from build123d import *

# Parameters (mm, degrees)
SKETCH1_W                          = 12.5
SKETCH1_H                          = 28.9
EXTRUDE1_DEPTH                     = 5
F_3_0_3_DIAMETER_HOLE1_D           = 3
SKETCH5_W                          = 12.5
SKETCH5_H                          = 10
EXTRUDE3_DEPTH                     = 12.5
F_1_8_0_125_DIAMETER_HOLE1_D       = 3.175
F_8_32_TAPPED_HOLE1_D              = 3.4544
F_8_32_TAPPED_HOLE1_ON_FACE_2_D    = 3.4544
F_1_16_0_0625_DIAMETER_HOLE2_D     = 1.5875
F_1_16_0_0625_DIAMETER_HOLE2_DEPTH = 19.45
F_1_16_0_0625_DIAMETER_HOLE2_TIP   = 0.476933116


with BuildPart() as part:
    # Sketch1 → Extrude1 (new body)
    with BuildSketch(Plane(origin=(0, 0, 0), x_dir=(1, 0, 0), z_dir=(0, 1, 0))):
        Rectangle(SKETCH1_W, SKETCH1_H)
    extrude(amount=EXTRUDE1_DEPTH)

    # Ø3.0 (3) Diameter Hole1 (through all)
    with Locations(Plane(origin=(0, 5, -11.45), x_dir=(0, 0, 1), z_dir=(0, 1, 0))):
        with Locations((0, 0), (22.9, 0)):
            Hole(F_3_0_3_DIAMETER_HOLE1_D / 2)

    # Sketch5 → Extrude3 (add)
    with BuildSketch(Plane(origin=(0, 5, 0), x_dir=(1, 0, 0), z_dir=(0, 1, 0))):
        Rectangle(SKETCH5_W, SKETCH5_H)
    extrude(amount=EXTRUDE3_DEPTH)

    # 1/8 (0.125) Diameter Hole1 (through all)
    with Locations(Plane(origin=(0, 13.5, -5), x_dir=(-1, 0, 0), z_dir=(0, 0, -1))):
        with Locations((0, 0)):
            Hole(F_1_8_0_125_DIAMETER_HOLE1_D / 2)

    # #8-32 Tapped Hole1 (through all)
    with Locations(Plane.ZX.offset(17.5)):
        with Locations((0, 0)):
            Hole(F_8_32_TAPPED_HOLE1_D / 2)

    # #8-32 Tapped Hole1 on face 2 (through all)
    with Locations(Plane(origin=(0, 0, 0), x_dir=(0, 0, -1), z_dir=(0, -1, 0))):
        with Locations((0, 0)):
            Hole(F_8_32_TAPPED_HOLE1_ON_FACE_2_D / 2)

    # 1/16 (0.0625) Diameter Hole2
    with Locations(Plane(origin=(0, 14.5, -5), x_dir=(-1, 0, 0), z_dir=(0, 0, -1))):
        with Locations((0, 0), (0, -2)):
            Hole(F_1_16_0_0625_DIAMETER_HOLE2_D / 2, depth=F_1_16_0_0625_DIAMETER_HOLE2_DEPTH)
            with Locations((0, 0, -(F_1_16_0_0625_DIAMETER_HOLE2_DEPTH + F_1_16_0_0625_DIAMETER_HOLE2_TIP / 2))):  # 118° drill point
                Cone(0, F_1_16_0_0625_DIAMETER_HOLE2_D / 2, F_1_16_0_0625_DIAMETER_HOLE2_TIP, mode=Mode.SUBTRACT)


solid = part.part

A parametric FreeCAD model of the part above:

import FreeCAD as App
import Part
import Sketcher

doc = App.newDocument("Part")
body = doc.addObject("PartDesign::Body", "Body")

sketch1 = body.newObject("Sketcher::SketchObject", "Sketch")
sketch1.AttachmentSupport = (doc.getObject("XZ_Plane"), [""])
sketch1.MapMode = "FlatFace"
sketch1.addGeometry(Part.LineSegment(App.Vector(-6, -14, 0), App.Vector(-6, 14, 0)), False)
sketch1.addGeometry(Part.LineSegment(App.Vector(-6, 14, 0), App.Vector(6, 14, 0)), False)
sketch1.addGeometry(Part.LineSegment(App.Vector(6, 14, 0), App.Vector(6, -14, 0)), False)
sketch1.addGeometry(Part.LineSegment(App.Vector(6, -14, 0), App.Vector(-6, -14, 0)), False)
sketch1.addConstraint(Sketcher.Constraint("Coincident", 0, 2, 1, 1))
sketch1.addConstraint(Sketcher.Constraint("Coincident", 1, 2, 2, 1))
sketch1.addConstraint(Sketcher.Constraint("Coincident", 2, 2, 3, 1))
sketch1.addConstraint(Sketcher.Constraint("Coincident", 3, 2, 0, 1))
sketch1.addConstraint(Sketcher.Constraint("Vertical", 0))
sketch1.addConstraint(Sketcher.Constraint("Horizontal", 1))
sketch1.addConstraint(Sketcher.Constraint("Vertical", 2))
sketch1.addConstraint(Sketcher.Constraint("Horizontal", 3))
sketch1.addConstraint(Sketcher.Constraint("Symmetric", 0, 2, 2, 2, -1, 1))
sketch1.addConstraint(Sketcher.Constraint("DistanceX", 1, 1, 1, 2, 12.5))
sketch1.addConstraint(Sketcher.Constraint("DistanceY", 0, 1, 0, 2, 28.9))
pad1 = body.newObject("PartDesign::Pad", "Pad")
pad1.Profile = sketch1
pad1.Length = 5
pad1.Reversed = True

sketch2 = body.newObject("Sketcher::SketchObject", "Sketch001")
sketch2.AttachmentSupport = (doc.getObject("XZ_Plane"), [""])
sketch2.MapMode = "FlatFace"
sketch2.AttachmentOffset = App.Placement(App.Vector(0, 0, -5), App.Rotation())
sketch2.addGeometry(Part.Circle(App.Vector(0, -11.4, 0), App.Vector(0, 0, 1), 1.5), False)
sketch2.addGeometry(Part.Circle(App.Vector(0, 11.4, 0), App.Vector(0, 0, 1), 1.5), False)
sketch2.addConstraint(Sketcher.Constraint("Equal", 0, 1))
sketch2.addConstraint(Sketcher.Constraint("Symmetric", 0, 3, 1, 3, -1, 1))
sketch2.addConstraint(Sketcher.Constraint("PointOnObject", 0, 3, -2))
sketch2.addConstraint(Sketcher.Constraint("Diameter", 0, 3.0))
sketch2.addConstraint(Sketcher.Constraint("DistanceY", 0, 3, 1, 3, 22.9))
doc.recompute()
hole = body.newObject("PartDesign::Hole", "Hole")
hole.Profile = sketch2
hole.ThreadType = "None"
hole.Diameter = 3
hole.DepthType = "ThroughAll"
hole.Reversed = True

sketch3 = body.newObject("Sketcher::SketchObject", "Sketch002")
sketch3.AttachmentSupport = (doc.getObject("XZ_Plane"), [""])
sketch3.MapMode = "FlatFace"
sketch3.AttachmentOffset = App.Placement(App.Vector(0, 0, -5), App.Rotation())
sketch3.addGeometry(Part.LineSegment(App.Vector(-6, -5, 0), App.Vector(-6, 5, 0)), False)
sketch3.addGeometry(Part.LineSegment(App.Vector(-6, 5, 0), App.Vector(6, 5, 0)), False)
sketch3.addGeometry(Part.LineSegment(App.Vector(6, 5, 0), App.Vector(6, -5, 0)), False)
sketch3.addGeometry(Part.LineSegment(App.Vector(6, -5, 0), App.Vector(-6, -5, 0)), False)
sketch3.addConstraint(Sketcher.Constraint("Coincident", 0, 2, 1, 1))
sketch3.addConstraint(Sketcher.Constraint("Coincident", 1, 2, 2, 1))
sketch3.addConstraint(Sketcher.Constraint("Coincident", 2, 2, 3, 1))
sketch3.addConstraint(Sketcher.Constraint("Coincident", 3, 2, 0, 1))
sketch3.addConstraint(Sketcher.Constraint("Vertical", 0))
sketch3.addConstraint(Sketcher.Constraint("Horizontal", 1))
sketch3.addConstraint(Sketcher.Constraint("Vertical", 2))
sketch3.addConstraint(Sketcher.Constraint("Horizontal", 3))
sketch3.addConstraint(Sketcher.Constraint("Symmetric", 0, 2, 2, 2, -1, 1))
sketch3.addConstraint(Sketcher.Constraint("DistanceY", 0, 1, 0, 2, 10.0))
sketch3.addConstraint(Sketcher.Constraint("DistanceX", 1, 1, 1, 2, 12.5))
pad2 = body.newObject("PartDesign::Pad", "Pad001")
pad2.Profile = sketch3
pad2.Length = 12.5
pad2.Reversed = True

sketch4 = body.newObject("Sketcher::SketchObject", "Sketch003")
sketch4.AttachmentSupport = (doc.getObject("XY_Plane"), [""])
sketch4.MapMode = "FlatFace"
sketch4.AttachmentOffset = App.Placement(App.Vector(0, 0, -5), App.Rotation())
sketch4.addGeometry(Part.Circle(App.Vector(0, 13.5, 0), App.Vector(0, 0, 1), 1.6), False)
sketch4.addConstraint(Sketcher.Constraint("PointOnObject", 0, 3, -2))
sketch4.addConstraint(Sketcher.Constraint("Diameter", 0, 3.175))
sketch4.addConstraint(Sketcher.Constraint("DistanceY", -1, 1, 0, 3, 13.5))
doc.recompute()
hole2 = body.newObject("PartDesign::Hole", "Hole001")
hole2.Profile = sketch4
hole2.ThreadType = "None"
hole2.Diameter = 3.175
hole2.DepthType = "ThroughAll"
hole2.Reversed = True

sketch5 = body.newObject("Sketcher::SketchObject", "Sketch004")
sketch5.AttachmentSupport = (doc.getObject("XZ_Plane"), [""])
sketch5.MapMode = "FlatFace"
sketch5.AttachmentOffset = App.Placement(App.Vector(0, 0, -17.5), App.Rotation())
sketch5.addGeometry(Part.Circle(App.Vector(0, 0, 0), App.Vector(0, 0, 1), 1.7), False)
sketch5.addConstraint(Sketcher.Constraint("Coincident", 0, 3, -1, 1))
sketch5.addConstraint(Sketcher.Constraint("Diameter", 0, 3.4544))
doc.recompute()
hole3 = body.newObject("PartDesign::Hole", "Hole002")
hole3.Profile = sketch5
hole3.ThreadType = "None"
hole3.Diameter = 3.4544
hole3.DepthType = "ThroughAll"
hole3.Reversed = True

sketch6 = body.newObject("Sketcher::SketchObject", "Sketch005")
sketch6.AttachmentSupport = (doc.getObject("XZ_Plane"), [""])
sketch6.MapMode = "FlatFace"
sketch6.addGeometry(Part.Circle(App.Vector(0, 0, 0), App.Vector(0, 0, 1), 1.7), False)
sketch6.addConstraint(Sketcher.Constraint("Coincident", 0, 3, -1, 1))
sketch6.addConstraint(Sketcher.Constraint("Diameter", 0, 3.4544))
doc.recompute()
hole4 = body.newObject("PartDesign::Hole", "Hole003")
hole4.Profile = sketch6
hole4.ThreadType = "None"
hole4.Diameter = 3.4544
hole4.DepthType = "ThroughAll"

sketch7 = body.newObject("Sketcher::SketchObject", "Sketch006")
sketch7.AttachmentSupport = (doc.getObject("XY_Plane"), [""])
sketch7.MapMode = "FlatFace"
sketch7.AttachmentOffset = App.Placement(App.Vector(0, 0, -5), App.Rotation())
sketch7.addGeometry(Part.Circle(App.Vector(0, 14.5, 0), App.Vector(0, 0, 1), 0.8), False)
sketch7.addGeometry(Part.Circle(App.Vector(0, 12.5, 0), App.Vector(0, 0, 1), 0.8), False)
sketch7.addConstraint(Sketcher.Constraint("Equal", 0, 1))
sketch7.addConstraint(Sketcher.Constraint("PointOnObject", 0, 3, -2))
sketch7.addConstraint(Sketcher.Constraint("PointOnObject", 1, 3, -2))
sketch7.addConstraint(Sketcher.Constraint("DistanceY", 1, 3, 0, 3, 2.0))
sketch7.addConstraint(Sketcher.Constraint("Diameter", 0, 1.5875))
sketch7.addConstraint(Sketcher.Constraint("DistanceY", -1, 1, 0, 3, 14.5))
doc.recompute()
hole5 = body.newObject("PartDesign::Hole", "Hole004")
hole5.Profile = sketch7
hole5.ThreadType = "None"
hole5.Diameter = 1.5875
hole5.DepthType = "Dimension"
hole5.Depth = 19.45
hole5.DrillPoint = "Angled"
hole5.DrillPointAngle = 118
hole5.Reversed = True

doc.recompute()
